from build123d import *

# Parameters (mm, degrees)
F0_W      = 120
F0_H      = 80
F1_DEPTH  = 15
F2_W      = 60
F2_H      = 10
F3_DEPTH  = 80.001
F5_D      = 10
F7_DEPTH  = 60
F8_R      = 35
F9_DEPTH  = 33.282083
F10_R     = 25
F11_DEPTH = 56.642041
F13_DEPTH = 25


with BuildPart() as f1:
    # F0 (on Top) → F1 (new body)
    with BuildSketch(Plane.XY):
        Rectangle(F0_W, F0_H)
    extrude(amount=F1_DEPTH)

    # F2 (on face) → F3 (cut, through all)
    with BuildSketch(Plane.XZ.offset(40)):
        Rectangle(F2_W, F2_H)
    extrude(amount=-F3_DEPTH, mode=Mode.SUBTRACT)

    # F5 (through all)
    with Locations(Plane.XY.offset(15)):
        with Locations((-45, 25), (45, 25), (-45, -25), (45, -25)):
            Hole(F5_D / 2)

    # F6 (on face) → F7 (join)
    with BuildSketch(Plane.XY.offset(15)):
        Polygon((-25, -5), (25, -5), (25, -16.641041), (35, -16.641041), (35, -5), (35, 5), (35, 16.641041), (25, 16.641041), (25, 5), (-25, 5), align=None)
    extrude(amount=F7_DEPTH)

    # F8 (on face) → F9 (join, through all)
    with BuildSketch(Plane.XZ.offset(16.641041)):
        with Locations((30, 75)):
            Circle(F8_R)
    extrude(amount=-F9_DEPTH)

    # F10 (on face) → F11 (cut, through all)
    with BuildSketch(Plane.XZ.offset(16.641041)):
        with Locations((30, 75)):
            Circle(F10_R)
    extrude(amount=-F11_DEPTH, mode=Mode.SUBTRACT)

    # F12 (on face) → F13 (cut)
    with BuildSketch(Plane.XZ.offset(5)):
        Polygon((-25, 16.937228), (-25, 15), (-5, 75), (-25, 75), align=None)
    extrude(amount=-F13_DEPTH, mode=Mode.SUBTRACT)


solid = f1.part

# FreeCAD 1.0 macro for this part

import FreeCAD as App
import Part
import Sketcher

V = App.Vector
Q = App.Units.Quantity

doc = App.newDocument("Part")
params = doc.addObject("Spreadsheet::Sheet", "Params")
for row, (alias, value) in enumerate([
    ("sketch1_width", "120 mm"),
    ("sketch1_height", "80 mm"),
    ("pad1_length", "15 mm"),
    ("sketch2_width", "60 mm"),
    ("sketch2_height", "10 mm"),
    ("sketch3_diameter", "10 mm"),
    ("hole_diameter", "10 mm"),
    ("sketch4_width", "50 mm"),
    ("sketch4_width2", "10 mm"),
    ("pad2_length", "60 mm"),
    ("sketch5_diameter", "70 mm"),
    ("sketch6_diameter", "50 mm"),
    ("sketch7_width", "20 mm"),
    ("sketch7_height", "60 mm"),
    ("pocket3_length", "25 mm"),
], start=1):
    params.set(f"A{row}", alias)
    params.set(f"B{row}", "=" + value)
    params.setAlias(f"B{row}", alias)

body = doc.addObject("PartDesign::Body", "Body")

# Sketch on XY plane
sketch1 = body.newObject("Sketcher::SketchObject", "Sketch")
sketch1.AttachmentSupport = (doc.getObject("XY_Plane"), [""])
sketch1.MapMode = "FlatFace"
sketch1.addGeometry(Part.LineSegment(V(-60, 40, 0), V(-60, -40, 0)), False)
sketch1.addGeometry(Part.LineSegment(V(-60, -40, 0), V(60, -40, 0)), False)
sketch1.addGeometry(Part.LineSegment(V(60, -40, 0), V(60, 40, 0)), False)
sketch1.addGeometry(Part.LineSegment(V(60, 40, 0), V(-60, 40, 0)), False)
sketch1.addConstraint(Sketcher.Constraint("Coincident", 0, 2, 1, 1))
sketch1.addConstraint(Sketcher.Constraint("Coincident", 1, 2, 2, 1))
sketch1.addConstraint(Sketcher.Constraint("Coincident", 2, 2, 3, 1))
sketch1.addConstraint(Sketcher.Constraint("Coincident", 3, 2, 0, 1))
sketch1.addConstraint(Sketcher.Constraint("Vertical", 0))
sketch1.addConstraint(Sketcher.Constraint("Horizontal", 1))
sketch1.addConstraint(Sketcher.Constraint("Vertical", 2))
sketch1.addConstraint(Sketcher.Constraint("Horizontal", 3))
sketch1.addConstraint(Sketcher.Constraint("Symmetric", 0, 2, 2, 2, -1, 1))
sketch1.addConstraint(Sketcher.Constraint("DistanceX", 1, 1, 1, 2, Q("120 mm")))
sketch1.addConstraint(Sketcher.Constraint("DistanceY", 0, 2, 0, 1, Q("80 mm")))
sketch1.setExpression("Constraints[9]", "Params.sketch1_width")
sketch1.setExpression("Constraints[10]", "Params.sketch1_height")
pad1 = body.newObject("PartDesign::Pad", "Pad")
pad1.Profile = sketch1
pad1.setExpression("Length", "Params.pad1_length")

# Sketch on XZ plane
sketch2 = body.newObject("Sketcher::SketchObject", "Sketch001")
sketch2.AttachmentSupport = (doc.getObject("XZ_Plane"), [""])
sketch2.MapMode = "FlatFace"
sketch2.AttachmentOffset = App.Placement(V(0, 0, 40), App.Rotation())
sketch2.addGeometry(Part.LineSegment(V(-30, 5, 0), V(-30, -5, 0)), False)
sketch2.addGeometry(Part.LineSegment(V(-30, -5, 0), V(30, -5, 0)), False)
sketch2.addGeometry(Part.LineSegment(V(30, -5, 0), V(30, 5, 0)), False)
sketch2.addGeometry(Part.LineSegment(V(30, 5, 0), V(-30, 5, 0)), False)
sketch2.addConstraint(Sketcher.Constraint("Coincident", 0, 2, 1, 1))
sketch2.addConstraint(Sketcher.Constraint("Coincident", 1, 2, 2, 1))
sketch2.addConstraint(Sketcher.Constraint("Coincident", 2, 2, 3, 1))
sketch2.addConstraint(Sketcher.Constraint("Coincident", 3, 2, 0, 1))
sketch2.addConstraint(Sketcher.Constraint("Vertical", 0))
sketch2.addConstraint(Sketcher.Constraint("Horizontal", 1))
sketch2.addConstraint(Sketcher.Constraint("Vertical", 2))
sketch2.addConstraint(Sketcher.Constraint("Horizontal", 3))
sketch2.addConstraint(Sketcher.Constraint("Symmetric", 0, 2, 2, 2, -1, 1))
sketch2.addConstraint(Sketcher.Constraint("DistanceX", 1, 1, 1, 2, Q("60 mm")))
sketch2.addConstraint(Sketcher.Constraint("DistanceY", 0, 2, 0, 1, Q("10 mm")))
sketch2.setExpression("Constraints[9]", "Params.sketch2_width")
sketch2.setExpression("Constraints[10]", "Params.sketch2_height")
pocket1 = body.newObject("PartDesign::Pocket", "Pocket")
pocket1.Profile = sketch2
pocket1.Type = "ThroughAll"

# Sketch on XY plane
sketch3 = body.newObject("Sketcher::SketchObject", "Sketch002")
sketch3.AttachmentSupport = (doc.getObject("XY_Plane"), [""])
sketch3.MapMode = "FlatFace"
sketch3.AttachmentOffset = App.Placement(V(0, 0, 15), App.Rotation())
sketch3.addGeometry(Part.Circle(V(-45, 25, 0), V(0, 0, 1), 5), False)
sketch3.addGeometry(Part.Circle(V(45, 25, 0), V(0, 0, 1), 5), False)
sketch3.addGeometry(Part.Circle(V(-45, -25, 0), V(0, 0, 1), 5), False)
sketch3.addGeometry(Part.Circle(V(45, -25, 0), V(0, 0, 1), 5), False)
sketch3.addConstraint(Sketcher.Constraint("Equal", 0, 1))
sketch3.addConstraint(Sketcher.Constraint("Equal", 1, 2))
sketch3.addConstraint(Sketcher.Constraint("Equal", 2, 3))
sketch3.addConstraint(Sketcher.Constraint("Symmetric", 1, 3, 2, 3, -1, 1))
sketch3.addConstraint(Sketcher.Constraint("Symmetric", 0, 3, 3, 3, -1, 1))
sketch3.addConstraint(Sketcher.Constraint("Symmetric", 0, 3, 1, 3, -2))
sketch3.addConstraint(Sketcher.Constraint("Diameter", 0, Q("10 mm")))
sketch3.addConstraint(Sketcher.Constraint("DistanceX", 0, 3, -1, 1, Q("45 mm")))
sketch3.addConstraint(Sketcher.Constraint("DistanceY", -1, 1, 0, 3, Q("25 mm")))
sketch3.setExpression("Constraints[6]", "Params.sketch3_diameter")
doc.recompute()
hole = body.newObject("PartDesign::Hole", "Hole")
hole.Profile = sketch3
hole.ThreadType = "None"
hole.setExpression("Diameter", "Params.hole_diameter")
hole.DepthType = "ThroughAll"

# Sketch on XY plane
sketch4 = body.newObject("Sketcher::SketchObject", "Sketch003")
sketch4.AttachmentSupport = (doc.getObject("XY_Plane"), [""])
sketch4.MapMode = "FlatFace"
sketch4.AttachmentOffset = App.Placement(V(0, 0, 15), App.Rotation())
sketch4.addGeometry(Part.LineSegment(V(-25, -5, 0), V(25, -5, 0)), False)
sketch4.addGeometry(Part.LineSegment(V(25, -5, 0), V(25, -17, 0)), False)
sketch4.addGeometry(Part.LineSegment(V(25, -17, 0), V(35, -17, 0)), False)
sketch4.addGeometry(Part.LineSegment(V(35, -17, 0), V(35, 17, 0)), False)
sketch4.addGeometry(Part.LineSegment(V(35, 17, 0), V(25, 17, 0)), False)
sketch4.addGeometry(Part.LineSegment(V(25, 17, 0), V(25, 5, 0)), False)
sketch4.addGeometry(Part.LineSegment(V(25, 5, 0), V(-25, 5, 0)), False)
sketch4.addGeometry(Part.LineSegment(V(-25, 5, 0), V(-25, -5, 0)), False)
sketch4.addConstraint(Sketcher.Constraint("Coincident", 0, 2, 1, 1))
sketch4.addConstraint(Sketcher.Constraint("Coincident", 1, 2, 2, 1))
sketch4.addConstraint(Sketcher.Constraint("Coincident", 2, 2, 3, 1))
sketch4.addConstraint(Sketcher.Constraint("Coincident", 3, 2, 4, 1))
sketch4.addConstraint(Sketcher.Constraint("Coincident", 4, 2, 5, 1))
sketch4.addConstraint(Sketcher.Constraint("Coincident", 5, 2, 6, 1))
sketch4.addConstraint(Sketcher.Constraint("Coincident", 6, 2, 7, 1))
sketch4.addConstraint(Sketcher.Constraint("Coincident", 7, 2, 0, 1))
sketch4.addConstraint(Sketcher.Constraint("Horizontal", 0))
sketch4.addConstraint(Sketcher.Constraint("Vertical", 1))
sketch4.addConstraint(Sketcher.Constraint("Horizontal", 2))
sketch4.addConstraint(Sketcher.Constraint("Vertical", 3))
sketch4.addConstraint(Sketcher.Constraint("Horizontal", 4))
sketch4.addConstraint(Sketcher.Constraint("Vertical", 5))
sketch4.addConstraint(Sketcher.Constraint("Horizontal", 6))
sketch4.addConstraint(Sketcher.Constraint("Vertical", 7))
sketch4.addConstraint(Sketcher.Constraint("Symmetric", 0, 2, 6, 2, -1, 1))
sketch4.addConstraint(Sketcher.Constraint("Symmetric", 1, 2, 4, 2, -1))
sketch4.addConstraint(Sketcher.Constraint("Equal", 4, 7))
sketch4.addConstraint(Sketcher.Constraint("DistanceX", 0, 1, 0, 2, Q("50 mm")))
sketch4.addConstraint(Sketcher.Constraint("DistanceX", 2, 1, 2, 2, Q("10 mm")))
sketch4.addConstraint(Sketcher.Constraint("DistanceY", 1, 2, 1, 1, Q("11.641041 mm")))
sketch4.setExpression("Constraints[19]", "Params.sketch4_width")
sketch4.setExpression("Constraints[20]", "Params.sketch4_width2")
pad2 = body.newObject("PartDesign::Pad", "Pad001")
pad2.Profile = sketch4
pad2.setExpression("Length", "Params.pad2_length")

# Sketch on XZ plane
sketch5 = body.newObject("Sketcher::SketchObject", "Sketch004")
sketch5.AttachmentSupport = (doc.getObject("XZ_Plane"), [""])
sketch5.MapMode = "FlatFace"
sketch5.AttachmentOffset = App.Placement(V(0, 0, 16.641041), App.Rotation())
sketch5.addGeometry(Part.Circle(V(30, 75, 0), V(0, 0, 1), 35), False)
sketch5.addConstraint(Sketcher.Constraint("Diameter", 0, Q("70 mm")))
sketch5.addConstraint(Sketcher.Constraint("DistanceX", -1, 1, 0, 3, Q("30 mm")))
sketch5.addConstraint(Sketcher.Constraint("DistanceY", -1, 1, 0, 3, Q("75 mm")))
sketch5.setExpression("Constraints[0]", "Params.sketch5_diameter")
pad3 = body.newObject("PartDesign::Pad", "Pad002")
pad3.Profile = sketch5
pad3.Type = "UpToLast"
pad3.Reversed = True

# Sketch on XZ plane
sketch6 = body.newObject("Sketcher::SketchObject", "Sketch005")
sketch6.AttachmentSupport = (doc.getObject("XZ_Plane"), [""])
sketch6.MapMode = "FlatFace"
sketch6.AttachmentOffset = App.Placement(V(0, 0, 16.641041), App.Rotation())
sketch6.addGeometry(Part.Circle(V(30, 75, 0), V(0, 0, 1), 25), False)
sketch6.addConstraint(Sketcher.Constraint("Diameter", 0, Q("50 mm")))
sketch6.addConstraint(Sketcher.Constraint("DistanceX", -1, 1, 0, 3, Q("30 mm")))
sketch6.addConstraint(Sketcher.Constraint("DistanceY", -1, 1, 0, 3, Q("75 mm")))
sketch6.setExpression("Constraints[0]", "Params.sketch6_diameter")
pocket2 = body.newObject("PartDesign::Pocket", "Pocket001")
pocket2.Profile = sketch6
pocket2.Type = "ThroughAll"

# Sketch on XZ plane
sketch7 = body.newObject("Sketcher::SketchObject", "Sketch006")
sketch7.AttachmentSupport = (doc.getObject("XZ_Plane"), [""])
sketch7.MapMode = "FlatFace"
sketch7.AttachmentOffset = App.Placement(V(0, 0, 5), App.Rotation())
sketch7.addGeometry(Part.LineSegment(V(-25, 15, 0), V(-5, 75, 0)), False)
sketch7.addGeometry(Part.LineSegment(V(-5, 75, 0), V(-25, 75, 0)), False)
sketch7.addGeometry(Part.LineSegment(V(-25, 75, 0), V(-25, 15, 0)), False)
sketch7.addConstraint(Sketcher.Constraint("Coincident", 0, 2, 1, 1))
sketch7.addConstraint(Sketcher.Constraint("Coincident", 1, 2, 2, 1))
sketch7.addConstraint(Sketcher.Constraint("Coincident", 2, 2, 0, 1))
sketch7.addConstraint(Sketcher.Constraint("Horizontal", 1))
sketch7.addConstraint(Sketcher.Constraint("Vertical", 2))
sketch7.addConstraint(Sketcher.Constraint("DistanceX", 1, 2, 1, 1, Q("20 mm")))
sketch7.addConstraint(Sketcher.Constraint("DistanceY", 2, 2, 2, 1, Q("60 mm")))
sketch7.addConstraint(Sketcher.Constraint("DistanceX", 0, 2, -1, 1, Q("5 mm")))
sketch7.addConstraint(Sketcher.Constraint("DistanceY", -1, 1, 0, 2, Q("75 mm")))
sketch7.setExpression("Constraints[5]", "Params.sketch7_width")
sketch7.setExpression("Constraints[6]", "Params.sketch7_height")
pocket3 = body.newObject("PartDesign::Pocket", "Pocket002")
pocket3.Profile = sketch7
pocket3.setExpression("Length", "Params.pocket3_length")

doc.recompute()
